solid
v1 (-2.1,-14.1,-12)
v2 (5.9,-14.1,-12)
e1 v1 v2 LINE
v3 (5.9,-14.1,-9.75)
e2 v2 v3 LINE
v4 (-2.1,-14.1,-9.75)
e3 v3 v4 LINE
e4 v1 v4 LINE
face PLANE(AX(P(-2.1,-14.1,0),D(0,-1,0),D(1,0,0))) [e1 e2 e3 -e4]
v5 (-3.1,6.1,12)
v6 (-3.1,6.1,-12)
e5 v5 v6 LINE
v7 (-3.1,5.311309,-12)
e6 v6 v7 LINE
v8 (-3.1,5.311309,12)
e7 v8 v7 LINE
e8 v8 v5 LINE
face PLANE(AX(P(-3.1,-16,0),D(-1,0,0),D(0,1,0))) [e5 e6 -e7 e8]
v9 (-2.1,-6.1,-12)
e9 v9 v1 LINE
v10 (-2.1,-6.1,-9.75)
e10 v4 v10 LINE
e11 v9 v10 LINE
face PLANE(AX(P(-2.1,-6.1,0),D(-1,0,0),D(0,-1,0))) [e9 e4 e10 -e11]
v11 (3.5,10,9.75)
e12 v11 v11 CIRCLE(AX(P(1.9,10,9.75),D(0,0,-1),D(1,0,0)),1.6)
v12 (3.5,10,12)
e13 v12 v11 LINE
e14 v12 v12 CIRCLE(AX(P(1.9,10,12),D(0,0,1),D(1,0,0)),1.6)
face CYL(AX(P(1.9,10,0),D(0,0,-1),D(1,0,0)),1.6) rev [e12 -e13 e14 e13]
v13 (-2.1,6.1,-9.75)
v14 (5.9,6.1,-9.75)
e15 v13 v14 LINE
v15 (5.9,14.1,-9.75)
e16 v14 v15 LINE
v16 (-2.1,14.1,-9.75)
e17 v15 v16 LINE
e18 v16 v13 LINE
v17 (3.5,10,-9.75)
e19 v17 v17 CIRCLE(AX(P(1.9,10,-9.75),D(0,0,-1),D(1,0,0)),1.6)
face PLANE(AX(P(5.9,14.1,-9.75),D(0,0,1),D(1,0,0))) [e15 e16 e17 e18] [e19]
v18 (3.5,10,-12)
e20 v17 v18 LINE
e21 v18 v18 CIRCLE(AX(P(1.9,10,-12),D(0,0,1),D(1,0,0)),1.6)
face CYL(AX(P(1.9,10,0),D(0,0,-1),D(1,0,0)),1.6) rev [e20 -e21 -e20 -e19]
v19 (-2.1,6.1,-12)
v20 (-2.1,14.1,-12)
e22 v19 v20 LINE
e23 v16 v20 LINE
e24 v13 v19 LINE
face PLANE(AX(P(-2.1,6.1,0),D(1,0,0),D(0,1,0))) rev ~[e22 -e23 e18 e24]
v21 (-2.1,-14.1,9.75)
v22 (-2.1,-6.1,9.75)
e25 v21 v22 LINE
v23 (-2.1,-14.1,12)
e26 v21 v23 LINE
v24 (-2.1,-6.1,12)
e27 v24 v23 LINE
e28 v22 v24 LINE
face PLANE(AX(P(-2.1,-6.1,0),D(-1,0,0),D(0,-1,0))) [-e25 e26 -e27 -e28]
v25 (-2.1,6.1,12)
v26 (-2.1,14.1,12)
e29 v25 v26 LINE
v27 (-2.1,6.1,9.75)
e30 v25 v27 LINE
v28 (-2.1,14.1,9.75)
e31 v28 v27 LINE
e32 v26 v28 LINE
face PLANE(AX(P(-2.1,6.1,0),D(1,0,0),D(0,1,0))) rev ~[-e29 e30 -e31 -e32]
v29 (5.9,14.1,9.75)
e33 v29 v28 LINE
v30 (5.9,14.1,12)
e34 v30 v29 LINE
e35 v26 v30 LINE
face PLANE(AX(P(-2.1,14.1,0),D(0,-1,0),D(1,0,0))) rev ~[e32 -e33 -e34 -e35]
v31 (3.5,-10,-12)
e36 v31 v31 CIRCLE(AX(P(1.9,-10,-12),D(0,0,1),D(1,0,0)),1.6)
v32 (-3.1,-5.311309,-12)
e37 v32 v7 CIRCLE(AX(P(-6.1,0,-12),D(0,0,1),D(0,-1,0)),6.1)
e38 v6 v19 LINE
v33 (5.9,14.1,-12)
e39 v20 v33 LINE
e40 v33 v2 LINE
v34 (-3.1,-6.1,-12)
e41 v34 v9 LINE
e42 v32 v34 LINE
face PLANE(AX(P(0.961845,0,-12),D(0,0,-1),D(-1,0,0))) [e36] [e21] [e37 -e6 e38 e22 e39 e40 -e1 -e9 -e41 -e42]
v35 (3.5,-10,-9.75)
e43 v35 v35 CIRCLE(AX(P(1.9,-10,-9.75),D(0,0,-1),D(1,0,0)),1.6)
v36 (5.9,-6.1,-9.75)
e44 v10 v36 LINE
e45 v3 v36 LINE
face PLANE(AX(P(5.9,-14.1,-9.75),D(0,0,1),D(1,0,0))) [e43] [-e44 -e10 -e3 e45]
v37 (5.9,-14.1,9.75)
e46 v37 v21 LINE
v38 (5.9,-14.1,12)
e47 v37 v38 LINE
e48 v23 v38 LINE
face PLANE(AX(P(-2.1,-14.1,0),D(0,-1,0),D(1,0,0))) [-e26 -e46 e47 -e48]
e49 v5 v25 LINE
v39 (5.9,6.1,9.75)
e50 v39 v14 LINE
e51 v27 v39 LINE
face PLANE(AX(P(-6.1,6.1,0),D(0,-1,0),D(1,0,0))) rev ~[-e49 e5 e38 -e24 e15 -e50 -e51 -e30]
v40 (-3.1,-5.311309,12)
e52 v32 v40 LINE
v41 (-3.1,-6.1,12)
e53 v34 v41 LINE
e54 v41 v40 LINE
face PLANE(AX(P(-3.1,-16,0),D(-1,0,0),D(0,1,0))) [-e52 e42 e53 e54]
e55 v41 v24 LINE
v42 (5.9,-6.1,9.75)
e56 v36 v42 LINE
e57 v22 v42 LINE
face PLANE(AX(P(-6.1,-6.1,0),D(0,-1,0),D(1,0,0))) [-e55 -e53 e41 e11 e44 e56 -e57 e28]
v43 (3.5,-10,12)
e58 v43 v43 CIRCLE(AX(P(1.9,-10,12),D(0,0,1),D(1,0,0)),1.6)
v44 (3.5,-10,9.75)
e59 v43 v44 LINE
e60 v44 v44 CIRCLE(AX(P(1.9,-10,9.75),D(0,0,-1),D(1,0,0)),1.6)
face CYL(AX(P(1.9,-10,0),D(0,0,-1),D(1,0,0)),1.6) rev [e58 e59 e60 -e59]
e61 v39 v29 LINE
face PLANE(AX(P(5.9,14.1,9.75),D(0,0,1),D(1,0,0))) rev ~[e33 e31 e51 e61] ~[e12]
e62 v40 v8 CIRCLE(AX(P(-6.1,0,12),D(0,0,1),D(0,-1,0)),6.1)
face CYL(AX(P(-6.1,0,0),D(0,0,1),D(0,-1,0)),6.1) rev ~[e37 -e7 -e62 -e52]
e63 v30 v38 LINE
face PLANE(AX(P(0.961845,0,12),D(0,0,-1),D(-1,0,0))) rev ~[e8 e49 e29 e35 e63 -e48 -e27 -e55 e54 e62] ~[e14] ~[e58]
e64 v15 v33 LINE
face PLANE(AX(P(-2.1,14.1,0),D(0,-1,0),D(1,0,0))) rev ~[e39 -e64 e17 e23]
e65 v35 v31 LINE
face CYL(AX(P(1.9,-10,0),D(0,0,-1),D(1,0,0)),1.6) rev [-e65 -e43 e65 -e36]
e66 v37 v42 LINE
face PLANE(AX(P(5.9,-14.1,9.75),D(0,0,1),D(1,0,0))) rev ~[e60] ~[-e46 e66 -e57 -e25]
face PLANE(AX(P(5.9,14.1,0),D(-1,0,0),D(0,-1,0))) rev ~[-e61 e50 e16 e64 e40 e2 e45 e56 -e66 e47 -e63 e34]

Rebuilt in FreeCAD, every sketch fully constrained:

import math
import FreeCAD as App
import Part
import Sketcher

doc = App.newDocument("Part")
body = doc.addObject("PartDesign::Body", "Body")

# Sketch on XY plane
sketch1 = body.newObject("Sketcher::SketchObject", "Sketch")
sketch1.AttachmentSupport = (doc.getObject("XY_Plane"), [""])
sketch1.MapMode = "FlatFace"
sketch1.addGeometry([
    Part.ArcOfCircle(Part.Circle(App.Vector(-6.1, 0, 0), App.Vector(0, 0, 1), 6.1), math.radians(-90), math.radians(90)),  # 0
    Part.LineSegment(App.Vector(-6.1, -6.1, 0), App.Vector(-2.1, -6.1, 0)),  # 1
    Part.LineSegment(App.Vector(-2.1, -6.1, 0), App.Vector(-2.1, -14.1, 0)),  # 2
    Part.LineSegment(App.Vector(-2.1, -14.1, 0), App.Vector(5.9, -14.1, 0)),  # 3
    Part.LineSegment(App.Vector(5.9, -14.1, 0), App.Vector(5.9, 14.1, 0)),  # 4
    Part.LineSegment(App.Vector(5.9, 14.1, 0), App.Vector(-2.1, 14.1, 0)),  # 5
    Part.LineSegment(App.Vector(-2.1, 14.1, 0), App.Vector(-2.1, 6.1, 0)),  # 6
    Part.LineSegment(App.Vector(-2.1, 6.1, 0), App.Vector(-6.1, 6.1, 0)),  # 7
    Part.Circle(App.Vector(1.9, -10, 0), App.Vector(0, 0, 1), 1.6),  # 8
    Part.Circle(App.Vector(1.9, 10, 0), App.Vector(0, 0, 1), 1.6),  # 9
], False)
sketch1.addConstraint([
    Sketcher.Constraint("Tangent", 0, 1, 1, 1),
    Sketcher.Constraint("Coincident", 1, 2, 2, 1),
    Sketcher.Constraint("Coincident", 2, 2, 3, 1),
    Sketcher.Constraint("Coincident", 3, 2, 4, 1),
    Sketcher.Constraint("Coincident", 4, 2, 5, 1),
    Sketcher.Constraint("Coincident", 5, 2, 6, 1),
    Sketcher.Constraint("Coincident", 6, 2, 7, 1),
    Sketcher.Constraint("Tangent", 7, 2, 0, 2),
    Sketcher.Constraint("Horizontal", 1),
    Sketcher.Constraint("Vertical", 2),
    Sketcher.Constraint("Horizontal", 3),
    Sketcher.Constraint("Vertical", 4),
    Sketcher.Constraint("Horizontal", 5),
    Sketcher.Constraint("Vertical", 6),
    Sketcher.Constraint("Horizontal", 7),
    Sketcher.Constraint("Equal", 8, 9),
    Sketcher.Constraint("Symmetric", 8, 3, 9, 3, -1),
    Sketcher.Constraint("Symmetric", 2, 2, 5, 2, -1),
    Sketcher.Constraint("PointOnObject", 0, 3, -1),
    Sketcher.Constraint("Equal", 5, 2),
    Sketcher.Constraint("Diameter", 8, 3.2),
    Sketcher.Constraint("Radius", 0, 6.1),
    Sketcher.Constraint("DistanceX", 1, 1, 1, 2, 4.0),
    Sketcher.Constraint("DistanceX", 3, 1, 3, 2, 8.0),
    Sketcher.Constraint("DistanceY", 8, 3, -1, 1, 10.0),
    Sketcher.Constraint("DistanceX", 0, 3, 8, 3, 8.0),
    Sketcher.Constraint("DistanceX", 0, 3, -1, 1, 6.1),
])
pad1 = body.newObject("PartDesign::Pad", "Pad")
pad1.Profile = sketch1
pad1.Length = 24
pad1.Midplane = True

# Sketch on XY plane
sketch2 = body.newObject("Sketcher::SketchObject", "Sketch001")
sketch2.AttachmentSupport = (doc.getObject("XY_Plane"), [""])
sketch2.MapMode = "FlatFace"
sketch2.addGeometry([
    Part.LineSegment(App.Vector(-11.1, 16, 0), App.Vector(-11.1, -16, 0)),
    Part.LineSegment(App.Vector(-11.1, -16, 0), App.Vector(-3.1, -16, 0)),
    Part.LineSegment(App.Vector(-3.1, -16, 0), App.Vector(-3.1, 16, 0)),
    Part.LineSegment(App.Vector(-3.1, 16, 0), App.Vector(-11.1, 16, 0)),
], False)
sketch2.addConstraint([
    Sketcher.Constraint("Coincident", 0, 2, 1, 1),
    Sketcher.Constraint("Coincident", 1, 2, 2, 1),
    Sketcher.Constraint("Coincident", 2, 2, 3, 1),
    Sketcher.Constraint("Coincident", 3, 2, 0, 1),
    Sketcher.Constraint("Vertical", 0),
    Sketcher.Constraint("Horizontal", 1),
    Sketcher.Constraint("Vertical", 2),
    Sketcher.Constraint("Horizontal", 3),
    Sketcher.Constraint("DistanceX", 1, 1, 1, 2, 8.0),
    Sketcher.Constraint("DistanceY", 0, 2, 0, 1, 32.0),
    Sketcher.Constraint("DistanceY", 0, 2, -1, 1, 16.0),
    Sketcher.Constraint("DistanceX", 0, 2, -1, 1, 11.1),
])
pocket1 = body.newObject("PartDesign::Pocket", "Pocket")
pocket1.Profile = sketch2
pocket1.Type = "ThroughAll"
pocket1.Midplane = True

# Sketch on XY plane
sketch3 = body.newObject("Sketcher::SketchObject", "Sketch002")
sketch3.AttachmentSupport = (doc.getObject("XY_Plane"), [""])
sketch3.MapMode = "FlatFace"
sketch3.addGeometry([
    Part.LineSegment(App.Vector(-6.1, 22.1, 0), App.Vector(-6.1, 6.1, 0)),  # 0
    Part.LineSegment(App.Vector(-6.1, 6.1, 0), App.Vector(17.9, 6.1, 0)),  # 1
    Part.LineSegment(App.Vector(17.9, 6.1, 0), App.Vector(17.9, 22.1, 0)),  # 2
    Part.LineSegment(App.Vector(17.9, 22.1, 0), App.Vector(-6.1, 22.1, 0)),  # 3
    Part.LineSegment(App.Vector(-6.1, -6.1, 0), App.Vector(-6.1, -22.1, 0)),  # 4
    Part.LineSegment(App.Vector(-6.1, -22.1, 0), App.Vector(17.9, -22.1, 0)),  # 5
    Part.LineSegment(App.Vector(17.9, -22.1, 0), App.Vector(17.9, -6.1, 0)),  # 6
    Part.LineSegment(App.Vector(17.9, -6.1, 0), App.Vector(-6.1, -6.1, 0)),  # 7
], False)
sketch3.addConstraint([
    Sketcher.Constraint("Coincident", 0, 2, 1, 1),
    Sketcher.Constraint("Coincident", 1, 2, 2, 1),
    Sketcher.Constraint("Coincident", 2, 2, 3, 1),
    Sketcher.Constraint("Coincident", 3, 2, 0, 1),
    Sketcher.Constraint("Coincident", 4, 2, 5, 1),
    Sketcher.Constraint("Coincident", 5, 2, 6, 1),
    Sketcher.Constraint("Coincident", 6, 2, 7, 1),
    Sketcher.Constraint("Coincident", 7, 2, 4, 1),
    Sketcher.Constraint("Vertical", 0),
    Sketcher.Constraint("Horizontal", 1),
    Sketcher.Constraint("Vertical", 2),
    Sketcher.Constraint("Horizontal", 3),
    Sketcher.Constraint("Vertical", 4),
    Sketcher.Constraint("Horizontal", 5),
    Sketcher.Constraint("Vertical", 6),
    Sketcher.Constraint("Horizontal", 7),
    Sketcher.Constraint("Symmetric", 3, 2, 4, 2, -1),
    Sketcher.Constraint("Symmetric", 1, 2, 6, 2, -1),
    Sketcher.Constraint("DistanceX", 1, 1, 1, 2, 24.0),
    Sketcher.Constraint("DistanceY", 0, 2, 0, 1, 16.0),
    Sketcher.Constraint("DistanceX", 0, 2, -1, 1, 6.1),
    Sketcher.Constraint("DistanceY", -1, 1, 0, 2, 6.1),
])
pocket2 = body.newObject("PartDesign::Pocket", "Pocket001")
pocket2.Profile = sketch3
pocket2.Length = 19.5
pocket2.Midplane = True

doc.recompute()
